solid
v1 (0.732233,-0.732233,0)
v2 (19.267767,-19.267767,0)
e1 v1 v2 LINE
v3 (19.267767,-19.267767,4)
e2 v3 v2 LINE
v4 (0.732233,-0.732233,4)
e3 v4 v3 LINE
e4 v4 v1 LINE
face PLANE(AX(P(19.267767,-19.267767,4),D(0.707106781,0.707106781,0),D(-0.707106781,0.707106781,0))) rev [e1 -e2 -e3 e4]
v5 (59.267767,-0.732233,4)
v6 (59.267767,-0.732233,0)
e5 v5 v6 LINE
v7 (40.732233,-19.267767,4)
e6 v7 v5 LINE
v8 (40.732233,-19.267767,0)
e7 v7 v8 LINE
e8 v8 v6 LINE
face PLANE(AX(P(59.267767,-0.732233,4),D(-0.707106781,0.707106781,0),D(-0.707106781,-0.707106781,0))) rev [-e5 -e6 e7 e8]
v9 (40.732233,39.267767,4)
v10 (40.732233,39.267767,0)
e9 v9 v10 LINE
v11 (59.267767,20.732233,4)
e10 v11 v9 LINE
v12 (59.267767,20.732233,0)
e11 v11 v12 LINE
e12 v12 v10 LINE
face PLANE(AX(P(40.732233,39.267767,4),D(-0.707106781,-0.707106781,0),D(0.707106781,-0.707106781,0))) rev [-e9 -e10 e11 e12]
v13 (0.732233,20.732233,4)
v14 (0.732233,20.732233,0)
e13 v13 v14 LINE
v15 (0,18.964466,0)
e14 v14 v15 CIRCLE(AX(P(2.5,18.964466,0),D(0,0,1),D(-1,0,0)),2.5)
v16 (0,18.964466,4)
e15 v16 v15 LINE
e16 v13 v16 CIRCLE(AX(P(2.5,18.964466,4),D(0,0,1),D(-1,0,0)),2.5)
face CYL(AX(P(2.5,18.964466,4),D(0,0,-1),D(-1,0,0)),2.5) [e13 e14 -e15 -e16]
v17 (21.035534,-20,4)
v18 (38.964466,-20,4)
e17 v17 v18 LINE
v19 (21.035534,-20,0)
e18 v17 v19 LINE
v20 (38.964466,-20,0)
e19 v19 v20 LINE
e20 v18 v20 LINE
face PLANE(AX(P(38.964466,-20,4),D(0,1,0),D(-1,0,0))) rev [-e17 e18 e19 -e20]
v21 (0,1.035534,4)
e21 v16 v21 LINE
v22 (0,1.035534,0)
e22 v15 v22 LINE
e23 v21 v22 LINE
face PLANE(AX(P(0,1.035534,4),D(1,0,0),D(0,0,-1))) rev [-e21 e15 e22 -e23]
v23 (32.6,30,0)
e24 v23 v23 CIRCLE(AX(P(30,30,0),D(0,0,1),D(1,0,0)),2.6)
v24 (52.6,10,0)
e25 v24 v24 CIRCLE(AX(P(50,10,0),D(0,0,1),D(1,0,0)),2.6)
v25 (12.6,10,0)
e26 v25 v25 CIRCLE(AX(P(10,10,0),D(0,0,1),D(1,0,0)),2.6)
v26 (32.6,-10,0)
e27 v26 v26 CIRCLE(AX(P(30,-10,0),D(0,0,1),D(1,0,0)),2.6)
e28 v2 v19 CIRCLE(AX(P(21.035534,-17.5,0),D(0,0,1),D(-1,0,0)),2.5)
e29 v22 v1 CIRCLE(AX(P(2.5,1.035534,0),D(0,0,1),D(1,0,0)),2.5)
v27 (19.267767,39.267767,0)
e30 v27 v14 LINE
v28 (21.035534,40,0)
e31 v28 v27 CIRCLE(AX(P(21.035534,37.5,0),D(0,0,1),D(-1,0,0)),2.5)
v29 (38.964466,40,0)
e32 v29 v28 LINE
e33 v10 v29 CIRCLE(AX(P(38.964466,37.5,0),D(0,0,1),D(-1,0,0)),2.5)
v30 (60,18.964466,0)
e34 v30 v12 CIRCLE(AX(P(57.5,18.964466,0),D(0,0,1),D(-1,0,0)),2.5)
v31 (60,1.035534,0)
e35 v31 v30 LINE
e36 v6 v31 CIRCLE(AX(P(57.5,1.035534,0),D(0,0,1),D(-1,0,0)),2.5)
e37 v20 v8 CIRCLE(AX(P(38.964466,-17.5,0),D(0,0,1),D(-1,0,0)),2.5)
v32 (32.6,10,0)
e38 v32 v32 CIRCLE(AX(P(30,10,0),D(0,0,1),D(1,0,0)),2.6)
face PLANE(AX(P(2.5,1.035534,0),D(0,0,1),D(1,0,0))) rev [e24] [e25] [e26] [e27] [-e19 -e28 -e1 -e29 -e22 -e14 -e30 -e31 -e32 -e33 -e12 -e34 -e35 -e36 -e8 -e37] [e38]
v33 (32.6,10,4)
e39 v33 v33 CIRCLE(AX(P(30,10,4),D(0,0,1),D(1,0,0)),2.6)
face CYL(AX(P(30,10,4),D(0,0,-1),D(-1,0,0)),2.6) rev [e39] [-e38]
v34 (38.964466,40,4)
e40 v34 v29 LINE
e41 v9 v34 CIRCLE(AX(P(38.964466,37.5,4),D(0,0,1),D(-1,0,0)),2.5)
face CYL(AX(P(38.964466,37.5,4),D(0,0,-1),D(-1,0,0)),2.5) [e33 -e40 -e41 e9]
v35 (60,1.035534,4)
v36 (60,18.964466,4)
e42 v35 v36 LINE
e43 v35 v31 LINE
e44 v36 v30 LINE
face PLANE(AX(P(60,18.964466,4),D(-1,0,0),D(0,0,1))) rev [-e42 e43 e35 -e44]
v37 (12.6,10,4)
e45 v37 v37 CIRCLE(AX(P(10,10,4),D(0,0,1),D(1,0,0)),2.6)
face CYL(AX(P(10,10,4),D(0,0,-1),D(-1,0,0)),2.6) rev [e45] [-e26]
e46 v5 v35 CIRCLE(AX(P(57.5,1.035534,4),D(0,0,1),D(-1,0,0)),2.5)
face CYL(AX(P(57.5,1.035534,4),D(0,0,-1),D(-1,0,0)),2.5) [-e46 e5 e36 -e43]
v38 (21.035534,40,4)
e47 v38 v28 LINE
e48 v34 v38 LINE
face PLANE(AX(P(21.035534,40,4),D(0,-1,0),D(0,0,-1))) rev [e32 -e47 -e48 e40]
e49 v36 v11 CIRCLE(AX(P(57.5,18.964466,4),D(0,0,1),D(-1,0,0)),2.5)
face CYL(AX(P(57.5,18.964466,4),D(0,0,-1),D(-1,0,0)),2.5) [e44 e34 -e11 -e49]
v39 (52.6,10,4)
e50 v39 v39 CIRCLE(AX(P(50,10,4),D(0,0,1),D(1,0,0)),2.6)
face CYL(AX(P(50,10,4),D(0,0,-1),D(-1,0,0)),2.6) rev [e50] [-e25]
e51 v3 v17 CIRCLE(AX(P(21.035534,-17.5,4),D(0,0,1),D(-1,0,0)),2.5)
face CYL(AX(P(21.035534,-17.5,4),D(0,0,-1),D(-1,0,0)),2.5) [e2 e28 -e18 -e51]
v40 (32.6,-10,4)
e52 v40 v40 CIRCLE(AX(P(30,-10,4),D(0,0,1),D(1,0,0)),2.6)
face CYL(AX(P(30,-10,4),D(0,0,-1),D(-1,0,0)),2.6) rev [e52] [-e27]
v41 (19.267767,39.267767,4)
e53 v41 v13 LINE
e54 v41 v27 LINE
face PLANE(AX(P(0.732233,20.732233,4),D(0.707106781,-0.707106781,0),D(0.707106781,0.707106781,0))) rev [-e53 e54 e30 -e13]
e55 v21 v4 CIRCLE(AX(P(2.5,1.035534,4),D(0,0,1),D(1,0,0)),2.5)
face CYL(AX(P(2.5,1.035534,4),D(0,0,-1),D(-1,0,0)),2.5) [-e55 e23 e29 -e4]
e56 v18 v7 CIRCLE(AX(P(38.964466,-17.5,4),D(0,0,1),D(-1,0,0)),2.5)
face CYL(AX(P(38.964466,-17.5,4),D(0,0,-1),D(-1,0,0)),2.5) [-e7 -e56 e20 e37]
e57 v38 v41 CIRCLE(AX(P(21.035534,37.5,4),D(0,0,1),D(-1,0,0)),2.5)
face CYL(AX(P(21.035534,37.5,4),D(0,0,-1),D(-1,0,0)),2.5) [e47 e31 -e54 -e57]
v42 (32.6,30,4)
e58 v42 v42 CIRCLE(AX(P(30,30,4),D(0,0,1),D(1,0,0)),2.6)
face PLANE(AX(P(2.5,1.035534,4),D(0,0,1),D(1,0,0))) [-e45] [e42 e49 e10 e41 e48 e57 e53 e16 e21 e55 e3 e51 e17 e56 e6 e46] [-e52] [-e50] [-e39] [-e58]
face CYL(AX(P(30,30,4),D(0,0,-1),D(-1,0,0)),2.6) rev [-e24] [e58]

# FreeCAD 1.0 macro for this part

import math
import FreeCAD as App
import Part
import Sketcher
from FreeCAD import Vector

doc = App.newDocument("Part")
body = doc.addObject("PartDesign::Body", "Body")

# Sketch on XY plane
sketch1 = body.newObject("Sketcher::SketchObject", "Sketch")
sketch1.AttachmentSupport = (doc.getObject("XY_Plane"), [""])
sketch1.MapMode = "FlatFace"
sketch1.addGeometry([
    Part.LineSegment(Vector(0, 19, 0), Vector(0, 1, 0)),  # 0
    Part.ArcOfCircle(Part.Circle(Vector(2.5, 1, 0), Vector(0, 0, 1), 2.5), math.radians(-180), math.radians(-135)),  # 1
    Part.LineSegment(Vector(0.7, -0.7, 0), Vector(19.3, -19.3, 0)),  # 2
    Part.ArcOfCircle(Part.Circle(Vector(21, -17.5, 0), Vector(0, 0, 1), 2.5), math.radians(-135), math.radians(-90)),  # 3
    Part.LineSegment(Vector(21, -20, 0), Vector(39, -20, 0)),  # 4
    Part.ArcOfCircle(Part.Circle(Vector(39, -17.5, 0), Vector(0, 0, 1), 2.5), math.radians(-90), math.radians(-45)),  # 5
    Part.LineSegment(Vector(40.7, -19.3, 0), Vector(59.3, -0.7, 0)),  # 6
    Part.ArcOfCircle(Part.Circle(Vector(57.5, 1, 0), Vector(0, 0, 1), 2.5), math.radians(-45), math.radians(0)),  # 7
    Part.LineSegment(Vector(60, 1, 0), Vector(60, 19, 0)),  # 8
    Part.ArcOfCircle(Part.Circle(Vector(57.5, 19, 0), Vector(0, 0, 1), 2.5), math.radians(0), math.radians(45)),  # 9
    Part.LineSegment(Vector(59.3, 20.7, 0), Vector(40.7, 39.3, 0)),  # 10
    Part.ArcOfCircle(Part.Circle(Vector(39, 37.5, 0), Vector(0, 0, 1), 2.5), math.radians(45), math.radians(90)),  # 11
    Part.LineSegment(Vector(39, 40, 0), Vector(21, 40, 0)),  # 12
    Part.ArcOfCircle(Part.Circle(Vector(21, 37.5, 0), Vector(0, 0, 1), 2.5), math.radians(90), math.radians(135)),  # 13
    Part.LineSegment(Vector(19.3, 39.3, 0), Vector(0.7, 20.7, 0)),  # 14
    Part.ArcOfCircle(Part.Circle(Vector(2.5, 19, 0), Vector(0, 0, 1), 2.5), math.radians(135), math.radians(180)),  # 15
    Part.Circle(Vector(30, -10, 0), Vector(0, 0, 1), 2.6),  # 16
    Part.Circle(Vector(50, 10, 0), Vector(0, 0, 1), 2.6),  # 17
    Part.Circle(Vector(30, 10, 0), Vector(0, 0, 1), 2.6),  # 18
    Part.Circle(Vector(10, 10, 0), Vector(0, 0, 1), 2.6),  # 19
    Part.Circle(Vector(30, 30, 0), Vector(0, 0, 1), 2.6),  # 20
], False)
sketch1.addConstraint([
    Sketcher.Constraint("Tangent", 0, 2, 1, 1),
    Sketcher.Constraint("Tangent", 1, 2, 2, 1),
    Sketcher.Constraint("Tangent", 2, 2, 3, 1),
    Sketcher.Constraint("Tangent", 3, 2, 4, 1),
    Sketcher.Constraint("Tangent", 4, 2, 5, 1),
    Sketcher.Constraint("Tangent", 5, 2, 6, 1),
    Sketcher.Constraint("Tangent", 6, 2, 7, 1),
    Sketcher.Constraint("Tangent", 7, 2, 8, 1),
    Sketcher.Constraint("Tangent", 8, 2, 9, 1),
    Sketcher.Constraint("Tangent", 9, 2, 10, 1),
    Sketcher.Constraint("Tangent", 10, 2, 11, 1),
    Sketcher.Constraint("Tangent", 11, 2, 12, 1),
    Sketcher.Constraint("Tangent", 12, 2, 13, 1),
    Sketcher.Constraint("Tangent", 13, 2, 14, 1),
    Sketcher.Constraint("Tangent", 14, 2, 15, 1),
    Sketcher.Constraint("Tangent", 15, 2, 0, 1),
    Sketcher.Constraint("Vertical", 0),
    Sketcher.Constraint("Horizontal", 4),
    Sketcher.Constraint("Vertical", 8),
    Sketcher.Constraint("Horizontal", 12),
    Sketcher.Constraint("Equal", 1, 3),
    Sketcher.Constraint("Equal", 3, 5),
    Sketcher.Constraint("Equal", 5, 7),
    Sketcher.Constraint("Equal", 7, 9),
    Sketcher.Constraint("Equal", 9, 11),
    Sketcher.Constraint("Equal", 11, 13),
    Sketcher.Constraint("Equal", 13, 15),
    Sketcher.Constraint("Equal", 16, 17),
    Sketcher.Constraint("Equal", 17, 18),
    Sketcher.Constraint("Equal", 18, 19),
    Sketcher.Constraint("Equal", 19, 20),
    Sketcher.Constraint("Symmetric", 16, 3, 18, 3, -1),
    Sketcher.Constraint("PointOnObject", 0, 2, -2),
    Sketcher.Constraint("Perpendicular", 2, 6),
    Sketcher.Constraint("Perpendicular", 6, 10),
    Sketcher.Constraint("Perpendicular", 10, 14),
    Sketcher.Constraint("Horizontal", 1, 3, 7, 3),
    Sketcher.Constraint("Horizontal", 9, 3, 15, 3),
    Sketcher.Constraint("Horizontal", 17, 3, 18, 3),
    Sketcher.Constraint("Horizontal", 18, 3, 19, 3),
    Sketcher.Constraint("Horizontal", 2, 2, 5, 2),
    Sketcher.Constraint("Vertical", 5, 3, 11, 3),
    Sketcher.Constraint("Vertical", 18, 3, 20, 3),
    Sketcher.Constraint("Equal", 12, 0),
    Sketcher.Constraint("Diameter", 16, 5.2),
    Sketcher.Constraint("Radius", 1, 2.5),
    Sketcher.Constraint("DistanceX", -1, 1, 16, 3, 30.0),
    Sketcher.Constraint("DistanceY", 16, 3, -1, 1, 10.0),
    Sketcher.Constraint("DistanceX", -1, 1, 17, 3, 50.0),
    Sketcher.Constraint("DistanceX", -1, 1, 19, 3, 10.0),
    Sketcher.Constraint("DistanceY", -1, 1, 20, 3, 30.0),
    Sketcher.Constraint("DistanceY", 3, 2, -1, 1, 20.0),
    Sketcher.Constraint("DistanceX", -1, 1, 7, 2, 60.0),
    Sketcher.Constraint("DistanceY", 1, 2, 15, 3, 19.696699),
])
pad1 = body.newObject("PartDesign::Pad", "Pad")
pad1.Profile = sketch1
pad1.Length = 4

doc.recompute()
